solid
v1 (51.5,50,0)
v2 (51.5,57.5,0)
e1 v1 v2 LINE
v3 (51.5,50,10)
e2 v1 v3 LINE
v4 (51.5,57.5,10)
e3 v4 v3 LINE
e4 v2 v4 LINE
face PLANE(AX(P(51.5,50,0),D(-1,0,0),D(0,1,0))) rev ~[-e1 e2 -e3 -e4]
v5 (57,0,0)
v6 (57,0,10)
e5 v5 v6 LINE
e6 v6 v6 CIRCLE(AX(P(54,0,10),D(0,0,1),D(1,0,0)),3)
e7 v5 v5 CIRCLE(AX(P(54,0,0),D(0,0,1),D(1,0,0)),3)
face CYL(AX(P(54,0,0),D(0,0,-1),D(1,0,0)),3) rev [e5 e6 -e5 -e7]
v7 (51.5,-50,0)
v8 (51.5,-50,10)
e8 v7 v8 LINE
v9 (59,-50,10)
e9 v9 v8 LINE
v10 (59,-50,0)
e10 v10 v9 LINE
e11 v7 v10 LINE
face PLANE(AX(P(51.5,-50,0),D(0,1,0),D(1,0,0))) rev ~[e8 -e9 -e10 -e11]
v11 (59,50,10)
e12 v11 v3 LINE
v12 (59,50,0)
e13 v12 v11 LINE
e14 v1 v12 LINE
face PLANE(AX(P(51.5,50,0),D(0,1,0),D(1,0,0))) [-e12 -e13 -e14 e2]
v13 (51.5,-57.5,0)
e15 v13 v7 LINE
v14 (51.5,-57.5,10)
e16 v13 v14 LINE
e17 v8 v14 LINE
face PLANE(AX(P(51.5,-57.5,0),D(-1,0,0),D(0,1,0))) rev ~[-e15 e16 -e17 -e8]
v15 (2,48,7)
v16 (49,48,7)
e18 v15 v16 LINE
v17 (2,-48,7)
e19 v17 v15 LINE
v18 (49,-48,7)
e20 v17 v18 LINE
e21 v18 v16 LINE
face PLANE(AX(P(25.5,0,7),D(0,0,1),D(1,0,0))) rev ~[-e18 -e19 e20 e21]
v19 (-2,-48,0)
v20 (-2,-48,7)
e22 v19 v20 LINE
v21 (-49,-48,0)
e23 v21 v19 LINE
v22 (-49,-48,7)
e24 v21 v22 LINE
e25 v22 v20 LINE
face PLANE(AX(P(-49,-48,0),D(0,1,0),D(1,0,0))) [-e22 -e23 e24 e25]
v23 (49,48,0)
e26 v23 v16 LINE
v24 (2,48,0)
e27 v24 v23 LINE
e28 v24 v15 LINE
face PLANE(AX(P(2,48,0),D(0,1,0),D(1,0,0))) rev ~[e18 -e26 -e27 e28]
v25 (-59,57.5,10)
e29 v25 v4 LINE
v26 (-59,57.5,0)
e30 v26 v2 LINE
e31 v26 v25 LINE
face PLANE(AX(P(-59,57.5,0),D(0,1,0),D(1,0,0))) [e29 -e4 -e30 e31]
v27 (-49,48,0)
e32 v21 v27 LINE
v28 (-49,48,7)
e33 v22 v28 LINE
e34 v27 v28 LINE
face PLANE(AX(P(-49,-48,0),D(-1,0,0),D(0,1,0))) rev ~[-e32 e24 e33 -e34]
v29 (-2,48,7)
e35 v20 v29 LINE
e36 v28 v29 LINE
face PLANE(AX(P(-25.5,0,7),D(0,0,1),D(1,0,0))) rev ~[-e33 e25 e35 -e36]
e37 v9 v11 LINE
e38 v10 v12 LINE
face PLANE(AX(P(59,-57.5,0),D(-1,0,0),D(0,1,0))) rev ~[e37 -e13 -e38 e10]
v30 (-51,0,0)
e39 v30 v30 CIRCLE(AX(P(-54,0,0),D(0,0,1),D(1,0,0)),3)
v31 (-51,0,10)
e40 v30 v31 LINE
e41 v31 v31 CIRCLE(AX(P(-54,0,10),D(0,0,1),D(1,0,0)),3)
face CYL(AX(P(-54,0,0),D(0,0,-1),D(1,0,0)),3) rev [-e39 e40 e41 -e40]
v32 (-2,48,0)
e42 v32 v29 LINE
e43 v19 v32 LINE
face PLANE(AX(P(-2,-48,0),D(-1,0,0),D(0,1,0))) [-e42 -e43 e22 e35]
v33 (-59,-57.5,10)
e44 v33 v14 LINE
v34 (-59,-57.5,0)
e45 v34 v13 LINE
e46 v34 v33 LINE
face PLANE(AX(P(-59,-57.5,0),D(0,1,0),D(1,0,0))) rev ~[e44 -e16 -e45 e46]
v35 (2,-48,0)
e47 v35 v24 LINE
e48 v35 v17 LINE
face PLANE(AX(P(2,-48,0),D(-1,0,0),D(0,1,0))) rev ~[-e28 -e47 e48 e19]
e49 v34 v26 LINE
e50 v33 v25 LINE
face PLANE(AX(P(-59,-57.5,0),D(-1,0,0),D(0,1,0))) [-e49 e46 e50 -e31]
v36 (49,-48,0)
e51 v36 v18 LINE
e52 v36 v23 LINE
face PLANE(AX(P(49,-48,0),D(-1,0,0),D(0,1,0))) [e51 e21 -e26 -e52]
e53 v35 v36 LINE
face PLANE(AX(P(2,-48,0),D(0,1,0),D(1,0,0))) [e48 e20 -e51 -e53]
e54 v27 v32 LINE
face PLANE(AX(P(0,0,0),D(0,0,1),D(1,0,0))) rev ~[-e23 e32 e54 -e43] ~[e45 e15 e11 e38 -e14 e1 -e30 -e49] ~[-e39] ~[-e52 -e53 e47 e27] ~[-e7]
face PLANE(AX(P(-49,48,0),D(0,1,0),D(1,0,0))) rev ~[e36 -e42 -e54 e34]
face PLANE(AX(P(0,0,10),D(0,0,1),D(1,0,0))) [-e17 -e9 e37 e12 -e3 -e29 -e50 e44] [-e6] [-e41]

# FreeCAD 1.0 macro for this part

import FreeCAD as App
import Part
import Sketcher
Q = App.Units.Quantity


def add_polygon(sketch, points):
    """Adds a closed chain of lines whose ends are joined by coincident constraints."""
    first, n = sketch.GeometryCount, len(points)
    for a, b in zip(points, points[1:] + points[:1]):
        sketch.addGeometry(Part.LineSegment(App.Vector(*a, 0), App.Vector(*b, 0)), False)
    for i in range(n):
        sketch.addConstraint(Sketcher.Constraint("Coincident", first + i, 2, first + (i + 1) % n, 1))

doc = App.newDocument("Part")
params = doc.addObject("Spreadsheet::Sheet", "Params")
for row, (alias, value) in enumerate([
    ("sketch1_diameter", "6 mm"),
    ("sketch1_width", "118 mm"),
    ("sketch1_height", "115 mm"),
    ("pad1_length", "10 mm"),
    ("sketch2_width", "47 mm"),
    ("sketch2_height", "96 mm"),
    ("pocket1_length", "7 mm"),
    ("sketch3_width", "7.5 mm"),
    ("pocket2_length", "25 mm"),
], start=1):
    params.set(f"A{row}", alias)
    params.set(f"B{row}", "=" + value)
    params.setAlias(f"B{row}", alias)

body = doc.addObject("PartDesign::Body", "Body")

sketch1 = body.newObject("Sketcher::SketchObject", "Sketch")
sketch1.AttachmentSupport = (doc.getObject("XY_Plane"), [""])
sketch1.MapMode = "FlatFace"
add_polygon(sketch1, [(-59, 57.5), (-59, -57.5), (59, -57.5), (59, 57.5)])
sketch1.addGeometry(Part.Circle(App.Vector(-54, 0, 0), App.Vector(0, 0, 1), 3), False)
sketch1.addGeometry(Part.Circle(App.Vector(54, 0, 0), App.Vector(0, 0, 1), 3), False)
sketch1.addConstraint(Sketcher.Constraint("Vertical", 0))
sketch1.addConstraint(Sketcher.Constraint("Horizontal", 1))
sketch1.addConstraint(Sketcher.Constraint("Vertical", 2))
sketch1.addConstraint(Sketcher.Constraint("Horizontal", 3))
sketch1.addConstraint(Sketcher.Constraint("Equal", 4, 5))
sketch1.addConstraint(Sketcher.Constraint("Symmetric", 4, 3, 5, 3, -1, 1))
sketch1.addConstraint(Sketcher.Constraint("Symmetric", 0, 2, 2, 2, -1, 1))
sketch1.addConstraint(Sketcher.Constraint("PointOnObject", 4, 3, -1))
sketch1.addConstraint(Sketcher.Constraint("Diameter", 4, Q("6 mm")))
sketch1.addConstraint(Sketcher.Constraint("DistanceX", 1, 1, 1, 2, Q("118 mm")))
sketch1.addConstraint(Sketcher.Constraint("DistanceY", 0, 2, 0, 1, Q("115 mm")))
sketch1.addConstraint(Sketcher.Constraint("DistanceX", 4, 3, -1, 1, Q("54 mm")))
sketch1.setExpression("Constraints[12]", "Params.sketch1_diameter")
sketch1.setExpression("Constraints[13]", "Params.sketch1_width")
sketch1.setExpression("Constraints[14]", "Params.sketch1_height")
pad1 = body.newObject("PartDesign::Pad", "Pad")
pad1.Profile = sketch1
pad1.setExpression("Length", "Params.pad1_length")

sketch2 = body.newObject("Sketcher::SketchObject", "Sketch001")
sketch2.AttachmentSupport = (doc.getObject("XY_Plane"), [""])
sketch2.MapMode = "FlatFace"
add_polygon(sketch2, [(-49, 48), (-49, -48), (-2, -48), (-2, 48)])
add_polygon(sketch2, [(2, 48), (2, -48), (49, -48), (49, 48)])
sketch2.addConstraint(Sketcher.Constraint("Vertical", 0))
sketch2.addConstraint(Sketcher.Constraint("Horizontal", 1))
sketch2.addConstraint(Sketcher.Constraint("Vertical", 2))
sketch2.addConstraint(Sketcher.Constraint("Horizontal", 3))
sketch2.addConstraint(Sketcher.Constraint("Vertical", 4))
sketch2.addConstraint(Sketcher.Constraint("Horizontal", 5))
sketch2.addConstraint(Sketcher.Constraint("Vertical", 6))
sketch2.addConstraint(Sketcher.Constraint("Horizontal", 7))
sketch2.addConstraint(Sketcher.Constraint("Symmetric", 2, 2, 4, 2, -1, 1))
sketch2.addConstraint(Sketcher.Constraint("Symmetric", 0, 2, 6, 2, -1, 1))
sketch2.addConstraint(Sketcher.Constraint("Horizontal", 1, 2, 4, 2))
sketch2.addConstraint(Sketcher.Constraint("DistanceX", 1, 1, 1, 2, Q("47 mm")))
sketch2.addConstraint(Sketcher.Constraint("DistanceY", 0, 2, 0, 1, Q("96 mm")))
sketch2.addConstraint(Sketcher.Constraint("DistanceX", 0, 2, -1, 1, Q("49 mm")))
sketch2.setExpression("Constraints[19]", "Params.sketch2_width")
sketch2.setExpression("Constraints[20]", "Params.sketch2_height")
pocket1 = body.newObject("PartDesign::Pocket", "Pocket")
pocket1.Profile = sketch2
pocket1.setExpression("Length", "Params.pocket1_length")
pocket1.Reversed = True

sketch3 = body.newObject("Sketcher::SketchObject", "Sketch002")
sketch3.AttachmentSupport = (doc.getObject("XY_Plane"), [""])
sketch3.MapMode = "FlatFace"
add_polygon(sketch3, [(51.5, -50), (51.5, -57.5), (59, -57.5), (59, -50)])
add_polygon(sketch3, [(51.5, 57.5), (51.5, 50), (59, 50), (59, 57.5)])
sketch3.addConstraint(Sketcher.Constraint("Vertical", 0))
sketch3.addConstraint(Sketcher.Constraint("Horizontal", 1))
sketch3.addConstraint(Sketcher.Constraint("Vertical", 2))
sketch3.addConstraint(Sketcher.Constraint("Horizontal", 3))
sketch3.addConstraint(Sketcher.Constraint("Vertical", 4))
sketch3.addConstraint(Sketcher.Constraint("Horizontal", 5))
sketch3.addConstraint(Sketcher.Constraint("Vertical", 6))
sketch3.addConstraint(Sketcher.Constraint("Horizontal", 7))
sketch3.addConstraint(Sketcher.Constraint("Symmetric", 3, 2, 4, 2, -1))
sketch3.addConstraint(Sketcher.Constraint("Symmetric", 1, 2, 6, 2, -1))
sketch3.addConstraint(Sketcher.Constraint("Equal", 7, 0))
sketch3.addConstraint(Sketcher.Constraint("DistanceX", 1, 1, 1, 2, Q("7.5 mm")))
sketch3.addConstraint(Sketcher.Constraint("DistanceX", -1, 1, 1, 2, Q("59 mm")))
sketch3.addConstraint(Sketcher.Constraint("DistanceY", 2, 2, -1, 1, Q("50 mm")))
sketch3.setExpression("Constraints[19]", "Params.sketch3_width")
pocket2 = body.newObject("PartDesign::Pocket", "Pocket001")
pocket2.Profile = sketch3
pocket2.setExpression("Length", "Params.pocket2_length")
pocket2.Reversed = True

doc.recompute()
